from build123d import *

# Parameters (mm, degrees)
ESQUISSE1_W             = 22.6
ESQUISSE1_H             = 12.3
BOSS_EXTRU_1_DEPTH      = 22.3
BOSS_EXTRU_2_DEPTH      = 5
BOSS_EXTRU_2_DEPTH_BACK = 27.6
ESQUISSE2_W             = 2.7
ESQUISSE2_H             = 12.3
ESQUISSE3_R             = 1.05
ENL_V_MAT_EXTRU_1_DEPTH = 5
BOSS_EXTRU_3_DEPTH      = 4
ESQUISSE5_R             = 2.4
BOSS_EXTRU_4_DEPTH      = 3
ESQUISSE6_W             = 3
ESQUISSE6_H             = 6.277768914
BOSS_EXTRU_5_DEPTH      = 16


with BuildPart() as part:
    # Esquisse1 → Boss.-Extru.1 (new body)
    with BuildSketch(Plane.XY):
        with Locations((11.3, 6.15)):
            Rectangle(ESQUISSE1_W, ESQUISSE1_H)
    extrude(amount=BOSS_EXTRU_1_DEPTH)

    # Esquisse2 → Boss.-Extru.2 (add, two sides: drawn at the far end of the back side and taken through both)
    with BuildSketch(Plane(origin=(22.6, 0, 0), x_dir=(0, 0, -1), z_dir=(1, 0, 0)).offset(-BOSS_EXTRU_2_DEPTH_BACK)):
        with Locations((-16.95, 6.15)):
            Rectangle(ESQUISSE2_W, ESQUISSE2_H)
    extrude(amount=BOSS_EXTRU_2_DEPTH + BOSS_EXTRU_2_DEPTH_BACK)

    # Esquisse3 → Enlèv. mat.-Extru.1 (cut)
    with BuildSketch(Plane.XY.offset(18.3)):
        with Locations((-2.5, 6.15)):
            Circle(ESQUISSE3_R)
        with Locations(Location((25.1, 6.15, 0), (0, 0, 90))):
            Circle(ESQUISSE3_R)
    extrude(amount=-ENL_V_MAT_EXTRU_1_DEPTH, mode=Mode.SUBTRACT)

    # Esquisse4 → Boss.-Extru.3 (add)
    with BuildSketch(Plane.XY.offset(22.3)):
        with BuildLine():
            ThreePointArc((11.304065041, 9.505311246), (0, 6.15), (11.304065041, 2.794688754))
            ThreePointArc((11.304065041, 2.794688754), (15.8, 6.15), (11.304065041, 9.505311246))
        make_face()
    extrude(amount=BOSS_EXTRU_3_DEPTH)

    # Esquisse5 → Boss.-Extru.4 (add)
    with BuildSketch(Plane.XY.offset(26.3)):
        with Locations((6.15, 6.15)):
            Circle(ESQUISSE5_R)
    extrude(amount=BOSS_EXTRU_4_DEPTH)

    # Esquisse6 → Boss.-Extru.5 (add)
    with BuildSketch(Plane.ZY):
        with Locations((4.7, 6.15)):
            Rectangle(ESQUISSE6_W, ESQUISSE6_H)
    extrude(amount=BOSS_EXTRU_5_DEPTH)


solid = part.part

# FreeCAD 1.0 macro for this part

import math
import FreeCAD as App
import Part
import Sketcher
from FreeCAD import Vector
Q = App.Units.Quantity


def add_polygon(sketch, points):
    """Adds a closed chain of lines whose ends are joined by coincident constraints."""
    first, n = sketch.GeometryCount, len(points)
    for a, b in zip(points, points[1:] + points[:1]):
        sketch.addGeometry(Part.LineSegment(App.Vector(*a, 0), App.Vector(*b, 0)), False)
    for i in range(n):
        sketch.addConstraint(Sketcher.Constraint("Coincident", first + i, 2, first + (i + 1) % n, 1))

doc = App.newDocument("Part")
body = doc.addObject("PartDesign::Body", "Body")

sketch1 = body.newObject("Sketcher::SketchObject", "Sketch")
sketch1.AttachmentSupport = (doc.getObject("XY_Plane"), [""])
sketch1.MapMode = "FlatFace"
add_polygon(sketch1, [(0, 12.3), (0, 0), (22.6, 0), (22.6, 12.3)])
sketch1.addConstraint(Sketcher.Constraint("Vertical", 0))
sketch1.addConstraint(Sketcher.Constraint("Horizontal", 1))
sketch1.addConstraint(Sketcher.Constraint("Vertical", 2))
sketch1.addConstraint(Sketcher.Constraint("Horizontal", 3))
sketch1.addConstraint(Sketcher.Constraint("Coincident", 0, 2, -1, 1))
sketch1.addConstraint(Sketcher.Constraint("DistanceX", 1, 1, 1, 2, Q("22.6 mm")))
sketch1.addConstraint(Sketcher.Constraint("DistanceY", 0, 2, 0, 1, Q("12.3 mm")))
pad1 = body.newObject("PartDesign::Pad", "Pad")
pad1.Profile = sketch1
pad1.Length = 22.3

sketch2 = body.newObject("Sketcher::SketchObject", "Sketch001")
sketch2.AttachmentSupport = (doc.getObject("YZ_Plane"), [""])
sketch2.MapMode = "FlatFace"
sketch2.AttachmentOffset = App.Placement(Vector(0, 0, 22.6), App.Rotation())
add_polygon(sketch2, [(12.3, 18.3), (0, 18.3), (0, 15.6), (12.3, 15.6)])
sketch2.addConstraint(Sketcher.Constraint("Horizontal", 0))
sketch2.addConstraint(Sketcher.Constraint("Vertical", 1))
sketch2.addConstraint(Sketcher.Constraint("Horizontal", 2))
sketch2.addConstraint(Sketcher.Constraint("Vertical", 3))
sketch2.addConstraint(Sketcher.Constraint("PointOnObject", 0, 2, -2))
sketch2.addConstraint(Sketcher.Constraint("DistanceX", 0, 2, 0, 1, Q("12.3 mm")))
sketch2.addConstraint(Sketcher.Constraint("DistanceY", 1, 2, 1, 1, Q("2.7 mm")))
sketch2.addConstraint(Sketcher.Constraint("DistanceY", -1, 1, 0, 2, Q("18.3 mm")))
pad2 = body.newObject("PartDesign::Pad", "Pad001")
pad2.Profile = sketch2
pad2.Type = "TwoLengths"
pad2.Length = 5
pad2.Length2 = 27.6

sketch3 = body.newObject("Sketcher::SketchObject", "Sketch002")
sketch3.AttachmentSupport = (doc.getObject("XY_Plane"), [""])
sketch3.MapMode = "FlatFace"
sketch3.AttachmentOffset = App.Placement(Vector(0, 0, 18.3), App.Rotation())
sketch3.addGeometry(Part.Circle(Vector(-2.5, 6.15, 0), Vector(0, 0, 1), 1.05), False)
sketch3.addGeometry(Part.Circle(Vector(25.1, 6.15, 0), Vector(0, 0, 1), 1.05), False)
sketch3.addConstraint(Sketcher.Constraint("Equal", 0, 1))
sketch3.addConstraint(Sketcher.Constraint("Horizontal", 0, 3, 1, 3))
sketch3.addConstraint(Sketcher.Constraint("Diameter", 0, Q("2.1 mm")))
sketch3.addConstraint(Sketcher.Constraint("DistanceX", 0, 3, -1, 1, Q("2.5 mm")))
sketch3.addConstraint(Sketcher.Constraint("DistanceX", -1, 1, 1, 3, Q("25.1 mm")))
sketch3.addConstraint(Sketcher.Constraint("DistanceY", -1, 1, 0, 3, Q("6.15 mm")))
pocket1 = body.newObject("PartDesign::Pocket", "Pocket")
pocket1.Profile = sketch3
pocket1.Length = 5

sketch4 = body.newObject("Sketcher::SketchObject", "Sketch003")
sketch4.AttachmentSupport = (doc.getObject("XY_Plane"), [""])
sketch4.MapMode = "FlatFace"
sketch4.AttachmentOffset = App.Placement(Vector(0, 0, 22.3), App.Rotation())
sketch4.addGeometry(Part.ArcOfCircle(Part.Circle(Vector(6.15, 6.15, 0), Vector(0, 0, 1), 6.15), math.radians(33.064244), math.radians(326.935756)), False)
sketch4.addGeometry(Part.ArcOfCircle(Part.Circle(Vector(12.3, 6.15, 0), Vector(0, 0, 1), 3.5), math.radians(-106.532122), math.radians(106.532122)), False)
sketch4.addConstraint(Sketcher.Constraint("Coincident", 0, 1, 1, 2))
sketch4.addConstraint(Sketcher.Constraint("Coincident", 1, 1, 0, 2))
sketch4.addConstraint(Sketcher.Constraint("Horizontal", 0, 3, 1, 3))
sketch4.addConstraint(Sketcher.Constraint("Radius", 1, Q("3.5 mm")))
sketch4.addConstraint(Sketcher.Constraint("Radius", 0, Q("6.15 mm")))
sketch4.addConstraint(Sketcher.Constraint("DistanceX", -1, 1, 1, 3, Q("12.3 mm")))
sketch4.addConstraint(Sketcher.Constraint("DistanceX", -1, 1, 0, 3, Q("6.15 mm")))
sketch4.addConstraint(Sketcher.Constraint("DistanceY", -1, 1, 0, 3, Q("6.15 mm")))
pad3 = body.newObject("PartDesign::Pad", "Pad002")
pad3.Profile = sketch4
pad3.Length = 4

sketch5 = body.newObject("Sketcher::SketchObject", "Sketch004")
sketch5.AttachmentSupport = (doc.getObject("XY_Plane"), [""])
sketch5.MapMode = "FlatFace"
sketch5.AttachmentOffset = App.Placement(Vector(0, 0, 26.3), App.Rotation())
sketch5.addGeometry(Part.Circle(Vector(6.15, 6.15, 0), Vector(0, 0, 1), 2.4), False)
sketch5.addConstraint(Sketcher.Constraint("Diameter", 0, Q("4.8 mm")))
sketch5.addConstraint(Sketcher.Constraint("DistanceX", -1, 1, 0, 3, Q("6.15 mm")))
sketch5.addConstraint(Sketcher.Constraint("DistanceY", -1, 1, 0, 3, Q("6.15 mm")))
pad4 = body.newObject("PartDesign::Pad", "Pad003")
pad4.Profile = sketch5
pad4.Length = 3

sketch6 = body.newObject("Sketcher::SketchObject", "Sketch005")
sketch6.AttachmentSupport = (doc.getObject("YZ_Plane"), [""])
sketch6.MapMode = "FlatFace"
add_polygon(sketch6, [(9.288884, 3.2), (3.011116, 3.2), (3.011116, 6.2), (9.288884, 6.2)])
sketch6.addConstraint(Sketcher.Constraint("Horizontal", 0))
sketch6.addConstraint(Sketcher.Constraint("Vertical", 1))
sketch6.addConstraint(Sketcher.Constraint("Horizontal", 2))
sketch6.addConstraint(Sketcher.Constraint("Vertical", 3))
sketch6.addConstraint(Sketcher.Constraint("DistanceY", 1, 1, 1, 2, Q("3 mm")))
sketch6.addConstraint(Sketcher.Constraint("DistanceY", -1, 1, 0, 2, Q("3.2 mm")))
sketch6.addConstraint(Sketcher.Constraint("DistanceX", 0, 2, 0, 1, Q("6.277769 mm")))
sketch6.addConstraint(Sketcher.Constraint("DistanceX", -1, 1, 0, 2, Q("3.011116 mm")))
pad5 = body.newObject("PartDesign::Pad", "Pad004")
pad5.Profile = sketch6
pad5.Length = 16
pad5.Reversed = True

doc.recompute()
